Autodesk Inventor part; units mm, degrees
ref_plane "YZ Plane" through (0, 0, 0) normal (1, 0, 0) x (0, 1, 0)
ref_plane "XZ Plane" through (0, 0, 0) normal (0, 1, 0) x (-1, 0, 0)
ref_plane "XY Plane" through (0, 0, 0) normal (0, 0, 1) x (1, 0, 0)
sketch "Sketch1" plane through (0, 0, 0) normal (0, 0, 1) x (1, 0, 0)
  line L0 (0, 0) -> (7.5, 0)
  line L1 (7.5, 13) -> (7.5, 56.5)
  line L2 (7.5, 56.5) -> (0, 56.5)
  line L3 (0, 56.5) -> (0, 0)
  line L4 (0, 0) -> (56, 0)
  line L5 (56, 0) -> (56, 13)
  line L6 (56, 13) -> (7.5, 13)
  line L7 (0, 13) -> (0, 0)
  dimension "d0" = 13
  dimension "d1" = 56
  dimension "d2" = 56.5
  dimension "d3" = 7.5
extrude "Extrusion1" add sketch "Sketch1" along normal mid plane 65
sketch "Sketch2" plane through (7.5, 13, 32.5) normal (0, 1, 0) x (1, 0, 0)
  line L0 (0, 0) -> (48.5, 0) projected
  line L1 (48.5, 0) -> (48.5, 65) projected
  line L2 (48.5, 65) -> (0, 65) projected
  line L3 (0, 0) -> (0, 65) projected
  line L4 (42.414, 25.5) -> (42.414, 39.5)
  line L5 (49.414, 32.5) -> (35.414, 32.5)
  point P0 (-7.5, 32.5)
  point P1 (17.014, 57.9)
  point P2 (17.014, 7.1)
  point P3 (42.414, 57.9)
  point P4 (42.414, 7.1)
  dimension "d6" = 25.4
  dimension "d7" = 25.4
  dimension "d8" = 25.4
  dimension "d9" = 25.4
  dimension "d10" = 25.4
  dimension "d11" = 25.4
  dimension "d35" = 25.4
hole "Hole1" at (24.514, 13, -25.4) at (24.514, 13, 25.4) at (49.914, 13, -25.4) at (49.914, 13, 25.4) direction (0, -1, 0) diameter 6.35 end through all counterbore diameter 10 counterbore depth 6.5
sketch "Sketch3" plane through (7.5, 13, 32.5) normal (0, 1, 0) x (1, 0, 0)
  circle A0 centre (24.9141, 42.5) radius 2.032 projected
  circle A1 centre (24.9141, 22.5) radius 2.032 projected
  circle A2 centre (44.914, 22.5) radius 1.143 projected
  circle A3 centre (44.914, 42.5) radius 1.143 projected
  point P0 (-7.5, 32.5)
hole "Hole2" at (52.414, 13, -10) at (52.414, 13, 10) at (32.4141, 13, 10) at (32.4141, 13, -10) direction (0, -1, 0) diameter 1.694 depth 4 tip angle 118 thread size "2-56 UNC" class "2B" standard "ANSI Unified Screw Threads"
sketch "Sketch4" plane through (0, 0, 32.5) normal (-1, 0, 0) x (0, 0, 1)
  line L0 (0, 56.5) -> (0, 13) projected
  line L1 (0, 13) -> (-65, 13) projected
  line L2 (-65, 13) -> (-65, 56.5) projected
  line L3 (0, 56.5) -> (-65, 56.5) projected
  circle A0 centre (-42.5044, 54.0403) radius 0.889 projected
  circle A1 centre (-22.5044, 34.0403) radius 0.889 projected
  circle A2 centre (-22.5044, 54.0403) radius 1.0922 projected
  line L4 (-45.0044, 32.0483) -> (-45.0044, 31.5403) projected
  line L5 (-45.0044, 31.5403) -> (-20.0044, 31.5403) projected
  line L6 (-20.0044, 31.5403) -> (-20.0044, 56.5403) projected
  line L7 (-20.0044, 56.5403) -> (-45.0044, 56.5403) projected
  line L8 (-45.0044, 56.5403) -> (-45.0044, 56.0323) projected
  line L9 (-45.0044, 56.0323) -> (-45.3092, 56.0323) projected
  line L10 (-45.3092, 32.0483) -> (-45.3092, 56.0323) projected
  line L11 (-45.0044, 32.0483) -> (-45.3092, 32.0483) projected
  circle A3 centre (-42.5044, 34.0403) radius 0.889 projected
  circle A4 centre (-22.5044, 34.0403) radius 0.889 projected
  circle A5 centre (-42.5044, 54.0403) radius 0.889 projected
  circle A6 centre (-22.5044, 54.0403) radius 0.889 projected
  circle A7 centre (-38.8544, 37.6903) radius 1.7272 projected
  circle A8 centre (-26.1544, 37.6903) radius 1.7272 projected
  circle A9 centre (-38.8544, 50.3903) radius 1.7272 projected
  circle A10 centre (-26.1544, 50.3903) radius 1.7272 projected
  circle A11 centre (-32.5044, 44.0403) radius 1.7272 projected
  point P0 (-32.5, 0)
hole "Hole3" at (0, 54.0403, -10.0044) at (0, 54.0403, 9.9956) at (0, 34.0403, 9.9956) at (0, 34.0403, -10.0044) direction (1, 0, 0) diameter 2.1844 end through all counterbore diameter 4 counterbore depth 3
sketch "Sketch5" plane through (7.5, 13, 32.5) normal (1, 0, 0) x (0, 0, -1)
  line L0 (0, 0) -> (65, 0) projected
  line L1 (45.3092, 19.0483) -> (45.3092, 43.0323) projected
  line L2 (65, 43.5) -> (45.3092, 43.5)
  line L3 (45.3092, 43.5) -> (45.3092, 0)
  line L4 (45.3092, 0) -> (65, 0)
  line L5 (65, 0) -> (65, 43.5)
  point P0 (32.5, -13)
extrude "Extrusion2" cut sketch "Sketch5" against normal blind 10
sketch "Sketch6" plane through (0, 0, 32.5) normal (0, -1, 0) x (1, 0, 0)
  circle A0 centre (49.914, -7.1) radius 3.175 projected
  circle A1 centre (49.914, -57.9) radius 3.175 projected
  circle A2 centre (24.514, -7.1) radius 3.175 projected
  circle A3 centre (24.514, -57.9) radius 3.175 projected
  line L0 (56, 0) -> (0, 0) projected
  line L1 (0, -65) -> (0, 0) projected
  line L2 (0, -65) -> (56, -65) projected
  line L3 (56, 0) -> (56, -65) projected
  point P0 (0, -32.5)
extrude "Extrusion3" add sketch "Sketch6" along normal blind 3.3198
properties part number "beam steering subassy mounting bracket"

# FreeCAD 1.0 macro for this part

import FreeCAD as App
import Part
import Sketcher
from FreeCAD import Vector


def add_polygon(sketch, points):
    """Adds a closed chain of lines whose ends are joined by coincident constraints."""
    first, n = sketch.GeometryCount, len(points)
    for a, b in zip(points, points[1:] + points[:1]):
        sketch.addGeometry(Part.LineSegment(App.Vector(*a, 0), App.Vector(*b, 0)), False)
    for i in range(n):
        sketch.addConstraint(Sketcher.Constraint("Coincident", first + i, 2, first + (i + 1) % n, 1))

doc = App.newDocument("Part")
body = doc.addObject("PartDesign::Body", "Body")

# Sketch on XY plane
sketch1 = doc.addObject("Sketcher::SketchObject", "Sketch")
body.addObject(sketch1)
sketch1.AttachmentSupport = (doc.XY_Plane, [""])
sketch1.MapMode = "FlatFace"
add_polygon(sketch1, [(0, 56), (0, 0), (56, 0), (56, 13), (8, 13), (8, 56)])  # lines 0-5
sketch1.addConstraint([
    Sketcher.Constraint("Vertical", 0),
    Sketcher.Constraint("Horizontal", 1),
    Sketcher.Constraint("Vertical", 2),
    Sketcher.Constraint("Horizontal", 3),
    Sketcher.Constraint("Vertical", 4),
    Sketcher.Constraint("Horizontal", 5),
    Sketcher.Constraint("Coincident", 0, 2, -1, 1),
    Sketcher.Constraint("DistanceX", 1, 1, 1, 2, 56.0),
    Sketcher.Constraint("DistanceY", 2, 1, 2, 2, 13.0),
    Sketcher.Constraint("DistanceX", 5, 2, 5, 1, 7.5),
    Sketcher.Constraint("DistanceY", 0, 2, 0, 1, 56.5),
])
pad1 = doc.addObject("PartDesign::Pad", "Pad")
body.addObject(pad1)
pad1.Profile = sketch1
pad1.Length = 65
pad1.Midplane = True

# Sketch on XZ plane
sketch2 = doc.addObject("Sketcher::SketchObject", "Sketch001")
body.addObject(sketch2)
sketch2.AttachmentSupport = (doc.XZ_Plane, [""])
sketch2.MapMode = "FlatFace"
sketch2.AttachmentOffset = App.Placement(Vector(0, 0, -13), App.Rotation())
sketch2.addGeometry([
    Part.Circle(Vector(24.5, -25.4, 0), Vector(0, 0, 1), 3.2),
    Part.Circle(Vector(24.5, 25.4, 0), Vector(0, 0, 1), 3.2),
    Part.Circle(Vector(49.9, -25.4, 0), Vector(0, 0, 1), 3.2),
    Part.Circle(Vector(49.9, 25.4, 0), Vector(0, 0, 1), 3.2),
], False)
sketch2.addConstraint([
    Sketcher.Constraint("Equal", 0, 1),
    Sketcher.Constraint("Equal", 1, 2),
    Sketcher.Constraint("Equal", 2, 3),
    Sketcher.Constraint("Symmetric", 0, 3, 1, 3, -1),
    Sketcher.Constraint("Symmetric", 2, 3, 3, 3, -1),
    Sketcher.Constraint("Horizontal", 0, 3, 2, 3),
    Sketcher.Constraint("Diameter", 0, 6.35),
    Sketcher.Constraint("DistanceY", 0, 3, -1, 1, 25.4),
    Sketcher.Constraint("DistanceX", 0, 3, 2, 3, 25.4),
    Sketcher.Constraint("DistanceX", -1, 1, 0, 3, 24.514),
])
doc.recompute()
hole = doc.addObject("PartDesign::Hole", "Hole")
body.addObject(hole)
hole.Profile = sketch2
hole.ThreadType = "None"
hole.Diameter = 6.35
hole.DepthType = "ThroughAll"
hole.HoleCutType = "Counterbore"
hole.HoleCutDiameter = 10
hole.HoleCutDepth = 6.5
hole.Reversed = True

# Sketch on XZ plane
sketch3 = doc.addObject("Sketcher::SketchObject", "Sketch002")
body.addObject(sketch3)
sketch3.AttachmentSupport = (doc.XZ_Plane, [""])
sketch3.MapMode = "FlatFace"
sketch3.AttachmentOffset = App.Placement(Vector(0, 0, -13), App.Rotation())
sketch3.addGeometry([
    Part.Circle(Vector(52.4, -10, 0), Vector(0, 0, 1), 0.8),
    Part.Circle(Vector(52.4, 10, 0), Vector(0, 0, 1), 0.8),
    Part.Circle(Vector(32.4, 10, 0), Vector(0, 0, 1), 0.8),
    Part.Circle(Vector(32.4, -10, 0), Vector(0, 0, 1), 0.8),
], False)
sketch3.addConstraint([
    Sketcher.Constraint("Equal", 0, 1),
    Sketcher.Constraint("Equal", 1, 2),
    Sketcher.Constraint("Equal", 2, 3),
    Sketcher.Constraint("Symmetric", 0, 3, 1, 3, -1),
    Sketcher.Constraint("Symmetric", 2, 3, 3, 3, -1),
    Sketcher.Constraint("Horizontal", 1, 3, 2, 3),
    Sketcher.Constraint("Diameter", 0, 1.694),
    Sketcher.Constraint("DistanceY", 0, 3, -1, 1, 10.0),
    Sketcher.Constraint("DistanceX", 2, 3, 1, 3, 20.0),
    Sketcher.Constraint("DistanceX", -1, 1, 0, 3, 52.414),
])
doc.recompute()
hole2 = doc.addObject("PartDesign::Hole", "Hole001")
body.addObject(hole2)
hole2.Profile = sketch3
hole2.ThreadType = "None"
hole2.Diameter = 1.694
hole2.DepthType = "Dimension"
hole2.Depth = 4
hole2.DrillPoint = "Angled"
hole2.DrillPointAngle = 118
hole2.Reversed = True

# Sketch on YZ plane
sketch4 = doc.addObject("Sketcher::SketchObject", "Sketch003")
body.addObject(sketch4)
sketch4.AttachmentSupport = (doc.YZ_Plane, [""])
sketch4.MapMode = "FlatFace"
sketch4.addGeometry([
    Part.Circle(Vector(54, -10, 0), Vector(0, 0, 1), 1.1),
    Part.Circle(Vector(54, 10, 0), Vector(0, 0, 1), 1.1),
    Part.Circle(Vector(34, 10, 0), Vector(0, 0, 1), 1.1),
    Part.Circle(Vector(34, -10, 0), Vector(0, 0, 1), 1.1),
], False)
sketch4.addConstraint([
    Sketcher.Constraint("Equal", 0, 1),
    Sketcher.Constraint("Equal", 1, 2),
    Sketcher.Constraint("Equal", 2, 3),
    Sketcher.Constraint("Horizontal", 1, 3, 2, 3),
    Sketcher.Constraint("Horizontal", 0, 3, 3, 3),
    Sketcher.Constraint("Vertical", 0, 3, 1, 3),
    Sketcher.Constraint("Vertical", 2, 3, 3, 3),
    Sketcher.Constraint("DistanceY", 0, 3, 1, 3, 20.0),
    Sketcher.Constraint("DistanceX", 2, 3, 1, 3, 20.0),
    Sketcher.Constraint("Diameter", 0, 2.1844),
    Sketcher.Constraint("DistanceX", -1, 1, 0, 3, 54.0403),
    Sketcher.Constraint("DistanceY", 0, 3, -1, 1, 10.0044),
])
doc.recompute()
hole3 = doc.addObject("PartDesign::Hole", "Hole002")
body.addObject(hole3)
hole3.Profile = sketch4
hole3.ThreadType = "None"
hole3.Diameter = 2.1844
hole3.DepthType = "ThroughAll"
hole3.HoleCutType = "Counterbore"
hole3.HoleCutDiameter = 4
hole3.HoleCutDepth = 3
hole3.Reversed = True

# Sketch on YZ plane
sketch5 = doc.addObject("Sketcher::SketchObject", "Sketch004")
body.addObject(sketch5)
sketch5.AttachmentSupport = (doc.YZ_Plane, [""])
sketch5.MapMode = "FlatFace"
sketch5.AttachmentOffset = App.Placement(Vector(0, 0, 7.5), App.Rotation())
add_polygon(sketch5, [(56, -13), (13, -13), (13, -32), (56, -32)])  # lines 0-3
sketch5.addConstraint([
    Sketcher.Constraint("Horizontal", 0),
    Sketcher.Constraint("Vertical", 1),
    Sketcher.Constraint("Horizontal", 2),
    Sketcher.Constraint("Vertical", 3),
    Sketcher.Constraint("DistanceX", 0, 2, 0, 1, 43.5),
    Sketcher.Constraint("DistanceX", -1, 1, 0, 2, 13.0),
    Sketcher.Constraint("DistanceY", 1, 2, -1, 1, 32.5),
    Sketcher.Constraint("DistanceY", 1, 2, 1, 1, 19.6908),
])
pocket1 = doc.addObject("PartDesign::Pocket", "Pocket")
body.addObject(pocket1)
pocket1.Profile = sketch5
pocket1.Length = 10

# Sketch on XZ plane
sketch6 = doc.addObject("Sketcher::SketchObject", "Sketch005")
body.addObject(sketch6)
sketch6.AttachmentSupport = (doc.XZ_Plane, [""])
sketch6.MapMode = "FlatFace"
add_polygon(sketch6, [(56, -32.5), (56, 32.5), (0, 32.5), (0, -32.5)])  # lines 0-3
sketch6.addGeometry(Part.Circle(Vector(24.5, -25.4, 0), Vector(0, 0, 1), 3.2), False)  # 4
sketch6.addGeometry(Part.Circle(Vector(49.9, -25.4, 0), Vector(0, 0, 1), 3.2), False)  # 5
sketch6.addGeometry(Part.Circle(Vector(24.5, 25.4, 0), Vector(0, 0, 1), 3.2), False)  # 6
sketch6.addGeometry(Part.Circle(Vector(49.9, 25.4, 0), Vector(0, 0, 1), 3.2), False)  # 7
sketch6.addConstraint([
    Sketcher.Constraint("Vertical", 0),
    Sketcher.Constraint("Horizontal", 1),
    Sketcher.Constraint("Vertical", 2),
    Sketcher.Constraint("Horizontal", 3),
    Sketcher.Constraint("Equal", 4, 5),
    Sketcher.Constraint("Equal", 5, 6),
    Sketcher.Constraint("Equal", 6, 7),
    Sketcher.Constraint("Symmetric", 1, 2, 2, 2, -1, 1),
    Sketcher.Constraint("Symmetric", 4, 3, 6, 3, -1),
    Sketcher.Constraint("Symmetric", 5, 3, 7, 3, -1),
    Sketcher.Constraint("Horizontal", 4, 3, 5, 3),
    Sketcher.Constraint("Diameter", 4, 6.35),
    Sketcher.Constraint("DistanceX", 1, 2, 1, 1, 56.0),
    Sketcher.Constraint("DistanceY", 0, 1, 0, 2, 65.0),
    Sketcher.Constraint("DistanceY", 4, 3, -1, 1, 25.4),
    Sketcher.Constraint("DistanceX", 4, 3, 5, 3, 25.4),
    Sketcher.Constraint("DistanceX", -1, 1, 4, 3, 24.514),
])
pad2 = doc.addObject("PartDesign::Pad", "Pad001")
body.addObject(pad2)
pad2.Profile = sketch6
pad2.Length = 3.3198

doc.recompute()
